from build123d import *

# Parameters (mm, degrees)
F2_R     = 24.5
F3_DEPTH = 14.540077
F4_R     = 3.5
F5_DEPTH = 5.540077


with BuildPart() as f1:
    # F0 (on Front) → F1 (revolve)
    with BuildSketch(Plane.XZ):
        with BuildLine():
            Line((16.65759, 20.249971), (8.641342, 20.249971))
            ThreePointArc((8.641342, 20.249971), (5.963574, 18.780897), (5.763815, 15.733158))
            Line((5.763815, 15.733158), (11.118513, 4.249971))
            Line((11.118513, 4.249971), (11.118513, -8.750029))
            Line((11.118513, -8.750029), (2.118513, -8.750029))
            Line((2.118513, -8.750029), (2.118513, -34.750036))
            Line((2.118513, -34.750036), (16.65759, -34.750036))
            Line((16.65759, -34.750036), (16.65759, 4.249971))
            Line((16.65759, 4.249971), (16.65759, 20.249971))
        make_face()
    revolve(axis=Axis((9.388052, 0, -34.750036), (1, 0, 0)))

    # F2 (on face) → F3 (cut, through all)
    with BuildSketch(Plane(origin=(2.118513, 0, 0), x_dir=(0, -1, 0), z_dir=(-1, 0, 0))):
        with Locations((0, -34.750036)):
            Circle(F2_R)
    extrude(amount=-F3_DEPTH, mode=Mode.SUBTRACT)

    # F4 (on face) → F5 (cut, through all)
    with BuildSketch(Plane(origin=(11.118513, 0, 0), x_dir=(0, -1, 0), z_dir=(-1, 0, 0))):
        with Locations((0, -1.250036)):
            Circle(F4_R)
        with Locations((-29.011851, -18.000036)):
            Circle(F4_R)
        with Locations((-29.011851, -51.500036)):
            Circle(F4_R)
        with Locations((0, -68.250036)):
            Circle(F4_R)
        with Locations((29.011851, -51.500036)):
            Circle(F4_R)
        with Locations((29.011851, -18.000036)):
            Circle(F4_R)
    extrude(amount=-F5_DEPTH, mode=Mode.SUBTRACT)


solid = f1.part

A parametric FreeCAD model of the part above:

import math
import FreeCAD as App
import Part
import Sketcher
from FreeCAD import Vector
Q = App.Units.Quantity

doc = App.newDocument("Part")
body = doc.addObject("PartDesign::Body", "Body")

sketch1 = body.newObject("Sketcher::SketchObject", "Sketch")
sketch1.AttachmentSupport = (doc.getObject("XZ_Plane"), [""])
sketch1.MapMode = "FlatFace"
sketch1.addGeometry(Part.LineSegment(Vector(16.7, 20.2, 0), Vector(8.6, 20.2, 0)), False)
sketch1.addGeometry(Part.ArcOfCircle(Part.Circle(Vector(8.6, 17.1, 0), Vector(0, 0, 1), 3.2), math.radians(90), math.radians(205)), False)
sketch1.addGeometry(Part.LineSegment(Vector(5.8, 15.7, 0), Vector(11.1, 4.2, 0)), False)
sketch1.addGeometry(Part.LineSegment(Vector(11.1, 4.2, 0), Vector(11.1, -8.8, 0)), False)
sketch1.addGeometry(Part.LineSegment(Vector(11.1, -8.8, 0), Vector(2.1, -8.8, 0)), False)
sketch1.addGeometry(Part.LineSegment(Vector(2.1, -8.8, 0), Vector(2.1, -34.8, 0)), False)
sketch1.addGeometry(Part.LineSegment(Vector(2.1, -34.8, 0), Vector(16.7, -34.8, 0)), False)
sketch1.addGeometry(Part.LineSegment(Vector(16.7, -34.8, 0), Vector(16.7, 20.2, 0)), False)
sketch1.addGeometry(Part.LineSegment(Vector(2.1, -34.8, 0), Vector(16.7, -34.8, 0)), True)
sketch1.addConstraint(Sketcher.Constraint("Tangent", 0, 2, 1, 1))
sketch1.addConstraint(Sketcher.Constraint("Tangent", 1, 2, 2, 1))
sketch1.addConstraint(Sketcher.Constraint("Coincident", 2, 2, 3, 1))
sketch1.addConstraint(Sketcher.Constraint("Coincident", 3, 2, 4, 1))
sketch1.addConstraint(Sketcher.Constraint("Coincident", 4, 2, 5, 1))
sketch1.addConstraint(Sketcher.Constraint("Coincident", 5, 2, 6, 1))
sketch1.addConstraint(Sketcher.Constraint("Coincident", 6, 2, 7, 1))
sketch1.addConstraint(Sketcher.Constraint("Coincident", 7, 2, 0, 1))
sketch1.addConstraint(Sketcher.Constraint("Horizontal", 0))
sketch1.addConstraint(Sketcher.Constraint("Vertical", 3))
sketch1.addConstraint(Sketcher.Constraint("Horizontal", 4))
sketch1.addConstraint(Sketcher.Constraint("Vertical", 5))
sketch1.addConstraint(Sketcher.Constraint("Horizontal", 6))
sketch1.addConstraint(Sketcher.Constraint("Vertical", 7))
sketch1.addConstraint(Sketcher.Constraint("Horizontal", 8))
sketch1.addConstraint(Sketcher.Constraint("Coincident", 8, 1, 5, 2))
sketch1.addConstraint(Sketcher.Constraint("Vertical", 7, 2, 8, 2))
sketch1.addConstraint(Sketcher.Constraint("DistanceX", 4, 2, 4, 1, 9.0))
sketch1.addConstraint(Sketcher.Constraint("DistanceY", 3, 2, 3, 1, 13.0))
sketch1.addConstraint(Sketcher.Constraint("Angle", 2, Q("-65 deg")))
sketch1.addConstraint(Sketcher.Constraint("Radius", 1, 3.175))
sketch1.addConstraint(Sketcher.Constraint("DistanceY", 2, 2, 0, 2, 16.0))
sketch1.addConstraint(Sketcher.Constraint("DistanceX", 0, 2, 0, 1, 8.016248))
sketch1.addConstraint(Sketcher.Constraint("DistanceY", 5, 2, 5, 1, 26.000007))
sketch1.addConstraint(Sketcher.Constraint("DistanceX", -1, 1, 1, 3, 8.641342))
sketch1.addConstraint(Sketcher.Constraint("DistanceY", -1, 1, 1, 3, 17.074971))
revolution = body.newObject("PartDesign::Revolution", "Revolution")
revolution.Profile = sketch1
revolution.ReferenceAxis = (sketch1, ["Axis0"])
revolution.Angle = 360

sketch2 = body.newObject("Sketcher::SketchObject", "Sketch001")
sketch2.AttachmentSupport = (doc.getObject("YZ_Plane"), [""])
sketch2.MapMode = "FlatFace"
sketch2.AttachmentOffset = App.Placement(Vector(0, 0, 2.118513), App.Rotation())
sketch2.addGeometry(Part.Circle(Vector(0, -35, 0), Vector(0, 0, 1), 24), False)
sketch2.addConstraint(Sketcher.Constraint("PointOnObject", 0, 3, -2))
sketch2.addConstraint(Sketcher.Constraint("Diameter", 0, 49.0))
sketch2.addConstraint(Sketcher.Constraint("DistanceY", 0, 3, -1, 1, 34.750036))
pocket1 = body.newObject("PartDesign::Pocket", "Pocket")
pocket1.Profile = sketch2
pocket1.Type = "ThroughAll"
pocket1.Reversed = True

sketch3 = body.newObject("Sketcher::SketchObject", "Sketch002")
sketch3.AttachmentSupport = (doc.getObject("YZ_Plane"), [""])
sketch3.MapMode = "FlatFace"
sketch3.AttachmentOffset = App.Placement(Vector(0, 0, 11.118513), App.Rotation())
sketch3.addGeometry(Part.Circle(Vector(0, -1.3, 0), Vector(0, 0, 1), 3.5), False)
sketch3.addGeometry(Part.Circle(Vector(29, -18, 0), Vector(0, 0, 1), 3.5), False)
sketch3.addGeometry(Part.Circle(Vector(29, -51.5, 0), Vector(0, 0, 1), 3.5), False)
sketch3.addGeometry(Part.Circle(Vector(0, -68.3, 0), Vector(0, 0, 1), 3.5), False)
sketch3.addGeometry(Part.Circle(Vector(-29, -51.5, 0), Vector(0, 0, 1), 3.5), False)
sketch3.addGeometry(Part.Circle(Vector(-29, -18, 0), Vector(0, 0, 1), 3.5), False)
sketch3.addConstraint(Sketcher.Constraint("Equal", 0, 1))
sketch3.addConstraint(Sketcher.Constraint("Equal", 1, 2))
sketch3.addConstraint(Sketcher.Constraint("Equal", 2, 3))
sketch3.addConstraint(Sketcher.Constraint("Equal", 3, 4))
sketch3.addConstraint(Sketcher.Constraint("Equal", 4, 5))
sketch3.addConstraint(Sketcher.Constraint("Symmetric", 2, 3, 4, 3, -2))
sketch3.addConstraint(Sketcher.Constraint("Symmetric", 1, 3, 5, 3, -2))
sketch3.addConstraint(Sketcher.Constraint("PointOnObject", 0, 3, -2))
sketch3.addConstraint(Sketcher.Constraint("PointOnObject", 3, 3, -2))
sketch3.addConstraint(Sketcher.Constraint("Vertical", 1, 3, 2, 3))
sketch3.addConstraint(Sketcher.Constraint("Diameter", 0, 7.0))
sketch3.addConstraint(Sketcher.Constraint("DistanceY", 3, 3, 0, 3, 67.0))
sketch3.addConstraint(Sketcher.Constraint("DistanceY", 2, 3, 1, 3, 33.5))
sketch3.addConstraint(Sketcher.Constraint("DistanceY", 1, 3, 0, 3, 16.75))
sketch3.addConstraint(Sketcher.Constraint("DistanceX", -1, 1, 1, 3, 29.011851))
sketch3.addConstraint(Sketcher.Constraint("DistanceY", 0, 3, -1, 1, 1.250036))
pocket2 = body.newObject("PartDesign::Pocket", "Pocket001")
pocket2.Profile = sketch3
pocket2.Type = "ThroughAll"
pocket2.Reversed = True

doc.recompute()
